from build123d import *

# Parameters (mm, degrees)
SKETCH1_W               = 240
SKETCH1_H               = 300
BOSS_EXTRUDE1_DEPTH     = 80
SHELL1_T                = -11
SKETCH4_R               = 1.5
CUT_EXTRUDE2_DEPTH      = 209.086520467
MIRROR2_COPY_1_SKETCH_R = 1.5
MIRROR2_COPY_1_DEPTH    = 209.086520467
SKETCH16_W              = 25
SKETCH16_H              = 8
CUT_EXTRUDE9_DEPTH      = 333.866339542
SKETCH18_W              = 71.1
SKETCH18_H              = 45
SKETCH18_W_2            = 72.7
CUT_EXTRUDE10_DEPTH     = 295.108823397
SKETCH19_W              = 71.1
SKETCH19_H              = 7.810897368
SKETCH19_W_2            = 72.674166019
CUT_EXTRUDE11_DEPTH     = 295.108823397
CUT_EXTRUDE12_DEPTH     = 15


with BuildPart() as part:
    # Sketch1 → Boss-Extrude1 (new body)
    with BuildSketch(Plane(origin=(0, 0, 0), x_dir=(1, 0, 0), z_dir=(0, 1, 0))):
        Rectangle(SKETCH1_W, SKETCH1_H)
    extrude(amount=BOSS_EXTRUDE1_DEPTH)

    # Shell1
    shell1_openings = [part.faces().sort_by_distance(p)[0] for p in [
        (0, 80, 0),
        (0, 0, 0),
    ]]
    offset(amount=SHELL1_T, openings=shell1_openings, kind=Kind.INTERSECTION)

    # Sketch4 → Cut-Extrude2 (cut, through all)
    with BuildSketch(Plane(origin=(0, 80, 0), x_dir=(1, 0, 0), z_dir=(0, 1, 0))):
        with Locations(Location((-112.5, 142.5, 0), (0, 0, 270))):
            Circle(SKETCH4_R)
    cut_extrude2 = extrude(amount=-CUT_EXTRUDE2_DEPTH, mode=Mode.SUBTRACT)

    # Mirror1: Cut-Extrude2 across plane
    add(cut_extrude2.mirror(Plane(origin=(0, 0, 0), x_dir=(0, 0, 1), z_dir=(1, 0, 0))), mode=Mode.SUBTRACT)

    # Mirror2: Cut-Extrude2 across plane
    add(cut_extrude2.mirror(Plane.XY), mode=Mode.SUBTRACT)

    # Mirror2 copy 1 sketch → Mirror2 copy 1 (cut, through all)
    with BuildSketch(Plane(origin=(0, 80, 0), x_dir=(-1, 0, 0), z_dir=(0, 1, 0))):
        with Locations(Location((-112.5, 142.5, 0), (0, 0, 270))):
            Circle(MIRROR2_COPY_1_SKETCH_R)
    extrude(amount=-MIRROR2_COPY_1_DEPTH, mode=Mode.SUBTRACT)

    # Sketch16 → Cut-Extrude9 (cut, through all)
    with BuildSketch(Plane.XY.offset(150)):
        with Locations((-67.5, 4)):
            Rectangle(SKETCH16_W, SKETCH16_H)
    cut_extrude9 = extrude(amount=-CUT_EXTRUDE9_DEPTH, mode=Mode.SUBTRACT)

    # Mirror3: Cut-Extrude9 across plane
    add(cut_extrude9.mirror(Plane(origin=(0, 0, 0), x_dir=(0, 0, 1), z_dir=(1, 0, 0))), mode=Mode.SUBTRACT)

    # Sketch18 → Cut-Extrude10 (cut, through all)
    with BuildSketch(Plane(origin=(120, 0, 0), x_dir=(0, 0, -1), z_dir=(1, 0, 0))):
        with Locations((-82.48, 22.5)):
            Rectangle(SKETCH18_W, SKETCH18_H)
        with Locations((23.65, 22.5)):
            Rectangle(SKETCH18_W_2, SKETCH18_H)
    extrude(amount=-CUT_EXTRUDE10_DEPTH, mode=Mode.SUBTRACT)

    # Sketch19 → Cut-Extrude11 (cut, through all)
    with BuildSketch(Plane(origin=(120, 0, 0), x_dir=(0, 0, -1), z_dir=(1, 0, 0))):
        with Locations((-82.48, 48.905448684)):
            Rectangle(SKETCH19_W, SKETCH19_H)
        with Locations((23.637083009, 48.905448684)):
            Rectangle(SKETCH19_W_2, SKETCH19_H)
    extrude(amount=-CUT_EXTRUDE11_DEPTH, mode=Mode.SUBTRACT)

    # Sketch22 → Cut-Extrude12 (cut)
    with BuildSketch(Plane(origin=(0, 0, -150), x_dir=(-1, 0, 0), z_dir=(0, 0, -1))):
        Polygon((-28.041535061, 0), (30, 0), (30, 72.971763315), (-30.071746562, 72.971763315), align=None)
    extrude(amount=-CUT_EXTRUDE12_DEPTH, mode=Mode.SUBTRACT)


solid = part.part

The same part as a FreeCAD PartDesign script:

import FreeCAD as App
import Part
import Sketcher
from FreeCAD import Vector


def faces_at(feature, points):
    """Names of the faces that lie closest to the given points."""
    faces = feature.Shape.Faces
    near = lambda p: min(range(len(faces)), key=lambda i: faces[i].distToShape(Part.Vertex(*p))[0])
    return sorted({f"Face{near(p) + 1}" for p in points})

doc = App.newDocument("Part")
body = doc.addObject("PartDesign::Body", "Body")

sketch1 = body.newObject("Sketcher::SketchObject", "Sketch")
sketch1.AttachmentSupport = (doc.getObject("XZ_Plane"), [""])
sketch1.MapMode = "FlatFace"
sketch1.addGeometry(Part.LineSegment(Vector(-120, -150, 0), Vector(-120, 150, 0)), False)
sketch1.addGeometry(Part.LineSegment(Vector(-120, 150, 0), Vector(120, 150, 0)), False)
sketch1.addGeometry(Part.LineSegment(Vector(120, 150, 0), Vector(120, -150, 0)), False)
sketch1.addGeometry(Part.LineSegment(Vector(120, -150, 0), Vector(-120, -150, 0)), False)
sketch1.addConstraint(Sketcher.Constraint("Coincident", 0, 2, 1, 1))
sketch1.addConstraint(Sketcher.Constraint("Coincident", 1, 2, 2, 1))
sketch1.addConstraint(Sketcher.Constraint("Coincident", 2, 2, 3, 1))
sketch1.addConstraint(Sketcher.Constraint("Coincident", 3, 2, 0, 1))
sketch1.addConstraint(Sketcher.Constraint("Vertical", 0))
sketch1.addConstraint(Sketcher.Constraint("Horizontal", 1))
sketch1.addConstraint(Sketcher.Constraint("Vertical", 2))
sketch1.addConstraint(Sketcher.Constraint("Horizontal", 3))
sketch1.addConstraint(Sketcher.Constraint("Symmetric", 0, 2, 2, 2, -1, 1))
sketch1.addConstraint(Sketcher.Constraint("DistanceX", 1, 1, 1, 2, 240.0))
sketch1.addConstraint(Sketcher.Constraint("DistanceY", 0, 1, 0, 2, 300.0))
pad1 = body.newObject("PartDesign::Pad", "Pad")
pad1.Profile = sketch1
pad1.Length = 80
pad1.Reversed = True
doc.recompute()

thickness = body.newObject("PartDesign::Thickness", "Thickness")
thickness.Base = (pad1, faces_at(pad1, [(0, 80, 0), (0, 0, 0)]))
thickness.Value = 11
thickness.Reversed = True
thickness.Join = "Intersection"

sketch2 = body.newObject("Sketcher::SketchObject", "Sketch001")
sketch2.AttachmentSupport = (doc.getObject("XZ_Plane"), [""])
sketch2.MapMode = "FlatFace"
sketch2.AttachmentOffset = App.Placement(Vector(0, 0, -80), App.Rotation())
sketch2.addGeometry(Part.Circle(Vector(-112.5, -142.5, 0), Vector(0, 0, 1), 1.5), False)
sketch2.addConstraint(Sketcher.Constraint("Diameter", 0, 3.0))
sketch2.addConstraint(Sketcher.Constraint("DistanceX", 0, 3, -1, 1, 112.5))
sketch2.addConstraint(Sketcher.Constraint("DistanceY", 0, 3, -1, 1, 142.5))
pocket1 = body.newObject("PartDesign::Pocket", "Pocket")
pocket1.Profile = sketch2
pocket1.Type = "ThroughAll"
pocket1.Reversed = True
doc.recompute()

mirrored = body.newObject("PartDesign::Mirrored", "Mirrored")
mirrored.Originals = [pocket1]
mirrored.MirrorPlane = (doc.getObject("YZ_Plane"), [""])
body.Tip = mirrored
doc.recompute()

mirrored2 = body.newObject("PartDesign::Mirrored", "Mirrored001")
mirrored2.Originals = [pocket1]
mirrored2.MirrorPlane = (doc.getObject("XY_Plane"), [""])
body.Tip = mirrored2

sketch3 = body.newObject("Sketcher::SketchObject", "Sketch002")
sketch3.AttachmentSupport = (doc.getObject("XZ_Plane"), [""])
sketch3.MapMode = "FlatFace"
sketch3.AttachmentOffset = App.Placement(Vector(0, 0, -80), App.Rotation())
sketch3.addGeometry(Part.Circle(Vector(112.5, 142.5, 0), Vector(0, 0, 1), 1.5), False)
sketch3.addConstraint(Sketcher.Constraint("Diameter", 0, 3.0))
sketch3.addConstraint(Sketcher.Constraint("DistanceX", -1, 1, 0, 3, 112.5))
sketch3.addConstraint(Sketcher.Constraint("DistanceY", -1, 1, 0, 3, 142.5))
pocket2 = body.newObject("PartDesign::Pocket", "Pocket001")
pocket2.Profile = sketch3
pocket2.Type = "ThroughAll"
pocket2.Reversed = True

sketch4 = body.newObject("Sketcher::SketchObject", "Sketch003")
sketch4.AttachmentSupport = (doc.getObject("XY_Plane"), [""])
sketch4.MapMode = "FlatFace"
sketch4.AttachmentOffset = App.Placement(Vector(0, 0, 150), App.Rotation())
sketch4.addGeometry(Part.LineSegment(Vector(-80, 8, 0), Vector(-80, 0, 0)), False)
sketch4.addGeometry(Part.LineSegment(Vector(-80, 0, 0), Vector(-55, 0, 0)), False)
sketch4.addGeometry(Part.LineSegment(Vector(-55, 0, 0), Vector(-55, 8, 0)), False)
sketch4.addGeometry(Part.LineSegment(Vector(-55, 8, 0), Vector(-80, 8, 0)), False)
sketch4.addConstraint(Sketcher.Constraint("Coincident", 0, 2, 1, 1))
sketch4.addConstraint(Sketcher.Constraint("Coincident", 1, 2, 2, 1))
sketch4.addConstraint(Sketcher.Constraint("Coincident", 2, 2, 3, 1))
sketch4.addConstraint(Sketcher.Constraint("Coincident", 3, 2, 0, 1))
sketch4.addConstraint(Sketcher.Constraint("Vertical", 0))
sketch4.addConstraint(Sketcher.Constraint("Horizontal", 1))
sketch4.addConstraint(Sketcher.Constraint("Vertical", 2))
sketch4.addConstraint(Sketcher.Constraint("Horizontal", 3))
sketch4.addConstraint(Sketcher.Constraint("PointOnObject", 0, 2, -1))
sketch4.addConstraint(Sketcher.Constraint("DistanceX", 1, 1, 1, 2, 25.0))
sketch4.addConstraint(Sketcher.Constraint("DistanceY", 0, 2, 0, 1, 8.0))
sketch4.addConstraint(Sketcher.Constraint("DistanceX", 0, 2, -1, 1, 80.0))
pocket3 = body.newObject("PartDesign::Pocket", "Pocket002")
pocket3.Profile = sketch4
pocket3.Type = "ThroughAll"
doc.recompute()

mirrored3 = body.newObject("PartDesign::Mirrored", "Mirrored002")
mirrored3.Originals = [pocket3]
mirrored3.MirrorPlane = (doc.getObject("YZ_Plane"), [""])
body.Tip = mirrored3

sketch5 = body.newObject("Sketcher::SketchObject", "Sketch004")
sketch5.AttachmentSupport = (doc.getObject("YZ_Plane"), [""])
sketch5.MapMode = "FlatFace"
sketch5.AttachmentOffset = App.Placement(Vector(0, 0, 120), App.Rotation())
sketch5.addGeometry(Part.LineSegment(Vector(45, 118, 0), Vector(0, 118, 0)), False)
sketch5.addGeometry(Part.LineSegment(Vector(0, 118, 0), Vector(0, 47, 0)), False)
sketch5.addGeometry(Part.LineSegment(Vector(0, 47, 0), Vector(45, 47, 0)), False)
sketch5.addGeometry(Part.LineSegment(Vector(45, 47, 0), Vector(45, 118, 0)), False)
sketch5.addGeometry(Part.LineSegment(Vector(45, 13, 0), Vector(0, 13, 0)), False)
sketch5.addGeometry(Part.LineSegment(Vector(0, 13, 0), Vector(0, -60, 0)), False)
sketch5.addGeometry(Part.LineSegment(Vector(0, -60, 0), Vector(45, -60, 0)), False)
sketch5.addGeometry(Part.LineSegment(Vector(45, -60, 0), Vector(45, 13, 0)), False)
sketch5.addConstraint(Sketcher.Constraint("Coincident", 0, 2, 1, 1))
sketch5.addConstraint(Sketcher.Constraint("Coincident", 1, 2, 2, 1))
sketch5.addConstraint(Sketcher.Constraint("Coincident", 2, 2, 3, 1))
sketch5.addConstraint(Sketcher.Constraint("Coincident", 3, 2, 0, 1))
sketch5.addConstraint(Sketcher.Constraint("Coincident", 4, 2, 5, 1))
sketch5.addConstraint(Sketcher.Constraint("Coincident", 5, 2, 6, 1))
sketch5.addConstraint(Sketcher.Constraint("Coincident", 6, 2, 7, 1))
sketch5.addConstraint(Sketcher.Constraint("Coincident", 7, 2, 4, 1))
sketch5.addConstraint(Sketcher.Constraint("Horizontal", 0))
sketch5.addConstraint(Sketcher.Constraint("Vertical", 1))
sketch5.addConstraint(Sketcher.Constraint("Horizontal", 2))
sketch5.addConstraint(Sketcher.Constraint("Vertical", 3))
sketch5.addConstraint(Sketcher.Constraint("Horizontal", 4))
sketch5.addConstraint(Sketcher.Constraint("Vertical", 5))
sketch5.addConstraint(Sketcher.Constraint("Horizontal", 6))
sketch5.addConstraint(Sketcher.Constraint("Vertical", 7))
sketch5.addConstraint(Sketcher.Constraint("PointOnObject", 0, 2, -2))
sketch5.addConstraint(Sketcher.Constraint("PointOnObject", 4, 2, -2))
sketch5.addConstraint(Sketcher.Constraint("Vertical", 3, 2, 6, 2))
sketch5.addConstraint(Sketcher.Constraint("DistanceX", 0, 2, 0, 1, 45.0))
sketch5.addConstraint(Sketcher.Constraint("DistanceY", 1, 2, 1, 1, 71.1))
sketch5.addConstraint(Sketcher.Constraint("DistanceY", 5, 2, 5, 1, 72.7))
sketch5.addConstraint(Sketcher.Constraint("DistanceY", 5, 2, -1, 1, 60.0))
sketch5.addConstraint(Sketcher.Constraint("DistanceY", -1, 1, 0, 2, 118.03))
pocket4 = body.newObject("PartDesign::Pocket", "Pocket003")
pocket4.Profile = sketch5
pocket4.Type = "ThroughAll"

sketch6 = body.newObject("Sketcher::SketchObject", "Sketch005")
sketch6.AttachmentSupport = (doc.getObject("YZ_Plane"), [""])
sketch6.MapMode = "FlatFace"
sketch6.AttachmentOffset = App.Placement(Vector(0, 0, 120), App.Rotation())
sketch6.addGeometry(Part.LineSegment(Vector(53, 118, 0), Vector(45, 118, 0)), False)
sketch6.addGeometry(Part.LineSegment(Vector(45, 118, 0), Vector(45, 47, 0)), False)
sketch6.addGeometry(Part.LineSegment(Vector(45, 47, 0), Vector(53, 47, 0)), False)
sketch6.addGeometry(Part.LineSegment(Vector(53, 47, 0), Vector(53, 118, 0)), False)
sketch6.addGeometry(Part.LineSegment(Vector(53, 13, 0), Vector(45, 13, 0)), False)
sketch6.addGeometry(Part.LineSegment(Vector(45, 13, 0), Vector(45, -60, 0)), False)
sketch6.addGeometry(Part.LineSegment(Vector(45, -60, 0), Vector(53, -60, 0)), False)
sketch6.addGeometry(Part.LineSegment(Vector(53, -60, 0), Vector(53, 13, 0)), False)
sketch6.addConstraint(Sketcher.Constraint("Coincident", 0, 2, 1, 1))
sketch6.addConstraint(Sketcher.Constraint("Coincident", 1, 2, 2, 1))
sketch6.addConstraint(Sketcher.Constraint("Coincident", 2, 2, 3, 1))
sketch6.addConstraint(Sketcher.Constraint("Coincident", 3, 2, 0, 1))
sketch6.addConstraint(Sketcher.Constraint("Coincident", 4, 2, 5, 1))
sketch6.addConstraint(Sketcher.Constraint("Coincident", 5, 2, 6, 1))
sketch6.addConstraint(Sketcher.Constraint("Coincident", 6, 2, 7, 1))
sketch6.addConstraint(Sketcher.Constraint("Coincident", 7, 2, 4, 1))
sketch6.addConstraint(Sketcher.Constraint("Horizontal", 0))
sketch6.addConstraint(Sketcher.Constraint("Vertical", 1))
sketch6.addConstraint(Sketcher.Constraint("Horizontal", 2))
sketch6.addConstraint(Sketcher.Constraint("Vertical", 3))
sketch6.addConstraint(Sketcher.Constraint("Horizontal", 4))
sketch6.addConstraint(Sketcher.Constraint("Vertical", 5))
sketch6.addConstraint(Sketcher.Constraint("Horizontal", 6))
sketch6.addConstraint(Sketcher.Constraint("Vertical", 7))
sketch6.addConstraint(Sketcher.Constraint("Vertical", 1, 2, 4, 2))
sketch6.addConstraint(Sketcher.Constraint("Vertical", 3, 2, 6, 2))
sketch6.addConstraint(Sketcher.Constraint("DistanceY", 1, 2, 1, 1, 71.1))
sketch6.addConstraint(Sketcher.Constraint("DistanceX", -1, 1, 0, 2, 45.0))
sketch6.addConstraint(Sketcher.Constraint("DistanceY", -1, 1, 4, 2, 12.7))
sketch6.addConstraint(Sketcher.Constraint("DistanceY", -1, 1, 0, 2, 118.03))
sketch6.addConstraint(Sketcher.Constraint("DistanceX", 0, 2, 0, 1, 7.810897))
sketch6.addConstraint(Sketcher.Constraint("DistanceY", 5, 2, 5, 1, 72.674166))
pocket5 = body.newObject("PartDesign::Pocket", "Pocket004")
pocket5.Profile = sketch6
pocket5.Type = "ThroughAll"

sketch7 = body.newObject("Sketcher::SketchObject", "Sketch006")
sketch7.AttachmentSupport = (doc.getObject("XY_Plane"), [""])
sketch7.MapMode = "FlatFace"
sketch7.AttachmentOffset = App.Placement(Vector(0, 0, -150), App.Rotation())
sketch7.addGeometry(Part.LineSegment(Vector(28, 0, 0), Vector(-30, 0, 0)), False)
sketch7.addGeometry(Part.LineSegment(Vector(-30, 0, 0), Vector(-30, 73, 0)), False)
sketch7.addGeometry(Part.LineSegment(Vector(-30, 73, 0), Vector(30, 73, 0)), False)
sketch7.addGeometry(Part.LineSegment(Vector(30, 73, 0), Vector(28, 0, 0)), False)
sketch7.addConstraint(Sketcher.Constraint("Coincident", 0, 2, 1, 1))
sketch7.addConstraint(Sketcher.Constraint("Coincident", 1, 2, 2, 1))
sketch7.addConstraint(Sketcher.Constraint("Coincident", 2, 2, 3, 1))
sketch7.addConstraint(Sketcher.Constraint("Coincident", 3, 2, 0, 1))
sketch7.addConstraint(Sketcher.Constraint("Horizontal", 0))
sketch7.addConstraint(Sketcher.Constraint("Vertical", 1))
sketch7.addConstraint(Sketcher.Constraint("Horizontal", 2))
sketch7.addConstraint(Sketcher.Constraint("PointOnObject", 0, 2, -1))
sketch7.addConstraint(Sketcher.Constraint("Distance", 3, 73.0))
sketch7.addConstraint(Sketcher.Constraint("DistanceX", 0, 2, -1, 1, 30.0))
sketch7.addConstraint(Sketcher.Constraint("DistanceX", 0, 2, 0, 1, 58.041535))
sketch7.addConstraint(Sketcher.Constraint("DistanceX", 2, 1, 2, 2, 60.071747))
pocket6 = body.newObject("PartDesign::Pocket", "Pocket005")
pocket6.Profile = sketch7
pocket6.Length = 15
pocket6.Reversed = True

doc.recompute()
